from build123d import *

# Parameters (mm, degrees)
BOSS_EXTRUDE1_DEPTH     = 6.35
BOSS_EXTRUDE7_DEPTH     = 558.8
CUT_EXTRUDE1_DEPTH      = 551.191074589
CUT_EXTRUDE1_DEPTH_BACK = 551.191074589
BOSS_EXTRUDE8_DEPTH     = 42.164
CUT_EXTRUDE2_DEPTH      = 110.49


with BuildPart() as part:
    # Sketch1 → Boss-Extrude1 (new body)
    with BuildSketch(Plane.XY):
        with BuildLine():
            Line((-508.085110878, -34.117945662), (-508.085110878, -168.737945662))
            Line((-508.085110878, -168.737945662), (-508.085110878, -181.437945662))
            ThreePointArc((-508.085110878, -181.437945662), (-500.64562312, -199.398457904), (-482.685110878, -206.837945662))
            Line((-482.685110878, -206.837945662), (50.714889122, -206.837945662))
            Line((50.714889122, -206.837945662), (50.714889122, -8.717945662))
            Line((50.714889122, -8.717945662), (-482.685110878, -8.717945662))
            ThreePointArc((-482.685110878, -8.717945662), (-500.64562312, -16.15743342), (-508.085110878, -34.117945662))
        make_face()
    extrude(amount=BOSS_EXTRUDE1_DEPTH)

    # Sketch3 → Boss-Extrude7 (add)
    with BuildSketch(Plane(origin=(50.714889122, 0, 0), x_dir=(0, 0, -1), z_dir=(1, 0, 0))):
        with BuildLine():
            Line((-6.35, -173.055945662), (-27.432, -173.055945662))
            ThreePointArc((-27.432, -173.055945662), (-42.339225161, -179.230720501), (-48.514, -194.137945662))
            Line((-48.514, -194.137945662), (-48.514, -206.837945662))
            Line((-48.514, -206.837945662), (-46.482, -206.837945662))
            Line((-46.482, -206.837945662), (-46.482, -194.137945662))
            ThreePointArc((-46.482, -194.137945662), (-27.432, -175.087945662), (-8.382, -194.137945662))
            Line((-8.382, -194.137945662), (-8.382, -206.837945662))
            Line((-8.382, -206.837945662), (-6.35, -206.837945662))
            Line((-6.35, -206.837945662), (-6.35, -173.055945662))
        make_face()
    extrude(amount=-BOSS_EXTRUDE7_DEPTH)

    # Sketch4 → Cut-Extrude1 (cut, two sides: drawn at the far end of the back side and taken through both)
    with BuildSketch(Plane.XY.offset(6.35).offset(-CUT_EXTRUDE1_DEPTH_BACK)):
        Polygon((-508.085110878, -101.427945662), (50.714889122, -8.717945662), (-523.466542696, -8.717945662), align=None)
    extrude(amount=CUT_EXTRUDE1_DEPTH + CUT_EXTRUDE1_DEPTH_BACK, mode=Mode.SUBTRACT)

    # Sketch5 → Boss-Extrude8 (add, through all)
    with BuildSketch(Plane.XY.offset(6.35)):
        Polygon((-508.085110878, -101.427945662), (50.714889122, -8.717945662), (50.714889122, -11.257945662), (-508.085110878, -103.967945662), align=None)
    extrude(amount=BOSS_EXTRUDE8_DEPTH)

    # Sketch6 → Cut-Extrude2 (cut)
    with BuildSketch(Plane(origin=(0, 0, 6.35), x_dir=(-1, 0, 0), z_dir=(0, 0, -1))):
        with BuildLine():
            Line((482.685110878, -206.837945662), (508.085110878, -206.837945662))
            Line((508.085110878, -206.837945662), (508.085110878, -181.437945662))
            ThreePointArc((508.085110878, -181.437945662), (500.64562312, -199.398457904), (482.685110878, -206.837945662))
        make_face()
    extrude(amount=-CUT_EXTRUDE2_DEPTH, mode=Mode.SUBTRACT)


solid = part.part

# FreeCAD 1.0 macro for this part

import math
import FreeCAD as App
import Part
import Sketcher
from FreeCAD import Vector
Q = App.Units.Quantity

doc = App.newDocument("Part")
body = doc.addObject("PartDesign::Body", "Body")

sketch1 = body.newObject("Sketcher::SketchObject", "Sketch")
sketch1.AttachmentSupport = (doc.getObject("XY_Plane"), [""])
sketch1.MapMode = "FlatFace"
sketch1.addGeometry(Part.LineSegment(Vector(-508, -34, 0), Vector(-508, -181, 0)), False)
sketch1.addGeometry(Part.ArcOfCircle(Part.Circle(Vector(-483, -181, 0), Vector(0, 0, 1), 25), math.radians(180), math.radians(270)), False)
sketch1.addGeometry(Part.LineSegment(Vector(-483, -207, 0), Vector(51, -207, 0)), False)
sketch1.addGeometry(Part.LineSegment(Vector(51, -207, 0), Vector(51, -9, 0)), False)
sketch1.addGeometry(Part.LineSegment(Vector(51, -9, 0), Vector(-483, -9, 0)), False)
sketch1.addGeometry(Part.ArcOfCircle(Part.Circle(Vector(-483, -34, 0), Vector(0, 0, 1), 25), math.radians(90), math.radians(180)), False)
sketch1.addConstraint(Sketcher.Constraint("Tangent", 0, 2, 1, 1))
sketch1.addConstraint(Sketcher.Constraint("Tangent", 1, 2, 2, 1))
sketch1.addConstraint(Sketcher.Constraint("Coincident", 2, 2, 3, 1))
sketch1.addConstraint(Sketcher.Constraint("Coincident", 3, 2, 4, 1))
sketch1.addConstraint(Sketcher.Constraint("Tangent", 4, 2, 5, 1))
sketch1.addConstraint(Sketcher.Constraint("Tangent", 5, 2, 0, 1))
sketch1.addConstraint(Sketcher.Constraint("Vertical", 0))
sketch1.addConstraint(Sketcher.Constraint("Horizontal", 2))
sketch1.addConstraint(Sketcher.Constraint("Vertical", 3))
sketch1.addConstraint(Sketcher.Constraint("Horizontal", 4))
sketch1.addConstraint(Sketcher.Constraint("Equal", 1, 5))
sketch1.addConstraint(Sketcher.Constraint("Radius", 1, Q("1 in")))
sketch1.addConstraint(Sketcher.Constraint("DistanceX", 2, 1, 2, 2, Q("21 in")))
sketch1.addConstraint(Sketcher.Constraint("DistanceY", 0, 2, 0, 1, Q("5.8 in")))
sketch1.addConstraint(Sketcher.Constraint("DistanceX", 1, 3, -1, 1, 482.685111))
sketch1.addConstraint(Sketcher.Constraint("DistanceY", 1, 3, -1, 1, 181.437946))
pad1 = body.newObject("PartDesign::Pad", "Pad")
pad1.Profile = sketch1
pad1.Length = Q("0.25 in")

sketch2 = body.newObject("Sketcher::SketchObject", "Sketch001")
sketch2.AttachmentSupport = (doc.getObject("YZ_Plane"), [""])
sketch2.MapMode = "FlatFace"
sketch2.AttachmentOffset = App.Placement(Vector(0, 0, 50.714889), App.Rotation())
sketch2.addGeometry(Part.LineSegment(Vector(-173.1, 6.3, 0), Vector(-173.1, 27.4, 0)), False)
sketch2.addGeometry(Part.ArcOfCircle(Part.Circle(Vector(-194.1, 27.4, 0), Vector(0, 0, 1), 21.1), math.radians(0), math.radians(90)), False)
sketch2.addGeometry(Part.LineSegment(Vector(-194.1, 48.5, 0), Vector(-206.8, 48.5, 0)), False)
sketch2.addGeometry(Part.LineSegment(Vector(-206.8, 48.5, 0), Vector(-206.8, 46.5, 0)), False)
sketch2.addGeometry(Part.LineSegment(Vector(-206.8, 46.5, 0), Vector(-194.1, 46.5, 0)), False)
sketch2.addGeometry(Part.ArcOfCircle(Part.Circle(Vector(-194.1, 27.4, 0), Vector(0, 0, 1), 19.1), math.radians(-90), math.radians(90)), False)
sketch2.addGeometry(Part.LineSegment(Vector(-194.1, 8.4, 0), Vector(-206.8, 8.4, 0)), False)
sketch2.addGeometry(Part.LineSegment(Vector(-206.8, 8.4, 0), Vector(-206.8, 6.3, 0)), False)
sketch2.addGeometry(Part.LineSegment(Vector(-206.8, 6.3, 0), Vector(-173.1, 6.3, 0)), False)
sketch2.addConstraint(Sketcher.Constraint("Tangent", 0, 2, 1, 1))
sketch2.addConstraint(Sketcher.Constraint("Tangent", 1, 2, 2, 1))
sketch2.addConstraint(Sketcher.Constraint("Coincident", 2, 2, 3, 1))
sketch2.addConstraint(Sketcher.Constraint("Coincident", 3, 2, 4, 1))
sketch2.addConstraint(Sketcher.Constraint("Tangent", 4, 2, 5, 2))
sketch2.addConstraint(Sketcher.Constraint("Tangent", 5, 1, 6, 1))
sketch2.addConstraint(Sketcher.Constraint("Coincident", 6, 2, 7, 1))
sketch2.addConstraint(Sketcher.Constraint("Coincident", 7, 2, 8, 1))
sketch2.addConstraint(Sketcher.Constraint("Coincident", 8, 2, 0, 1))
sketch2.addConstraint(Sketcher.Constraint("Vertical", 0))
sketch2.addConstraint(Sketcher.Constraint("Horizontal", 2))
sketch2.addConstraint(Sketcher.Constraint("Vertical", 3))
sketch2.addConstraint(Sketcher.Constraint("Horizontal", 4))
sketch2.addConstraint(Sketcher.Constraint("Horizontal", 6))
sketch2.addConstraint(Sketcher.Constraint("Vertical", 7))
sketch2.addConstraint(Sketcher.Constraint("Horizontal", 8))
sketch2.addConstraint(Sketcher.Constraint("Coincident", 5, 3, 1, 3))
sketch2.addConstraint(Sketcher.Constraint("Vertical", 3, 2, 6, 2))
sketch2.addConstraint(Sketcher.Constraint("Equal", 3, 7))
sketch2.addConstraint(Sketcher.Constraint("Radius", 1, Q("0.83 in")))
sketch2.addConstraint(Sketcher.Constraint("Radius", 5, Q("0.75 in")))
sketch2.addConstraint(Sketcher.Constraint("DistanceX", 2, 2, 2, 1, Q("0.5 in")))
sketch2.addConstraint(Sketcher.Constraint("DistanceY", -1, 1, 1, 3, Q("1.08 in")))
sketch2.addConstraint(Sketcher.Constraint("DistanceX", 1, 3, -1, 1, 194.137946))
pad2 = body.newObject("PartDesign::Pad", "Pad001")
pad2.Profile = sketch2
pad2.Length = Q("22 in")
pad2.Reversed = True

sketch3 = body.newObject("Sketcher::SketchObject", "Sketch002")
sketch3.AttachmentSupport = (doc.getObject("XY_Plane"), [""])
sketch3.MapMode = "FlatFace"
sketch3.AttachmentOffset = App.Placement(Vector(0, 0, 0.25 * 25.4), App.Rotation())
sketch3.addGeometry(Part.LineSegment(Vector(-508, -101, 0), Vector(51, -9, 0)), False)
sketch3.addGeometry(Part.LineSegment(Vector(51, -9, 0), Vector(-523, -9, 0)), False)
sketch3.addGeometry(Part.LineSegment(Vector(-523, -9, 0), Vector(-508, -101, 0)), False)
sketch3.addConstraint(Sketcher.Constraint("Coincident", 0, 2, 1, 1))
sketch3.addConstraint(Sketcher.Constraint("Coincident", 1, 2, 2, 1))
sketch3.addConstraint(Sketcher.Constraint("Coincident", 2, 2, 0, 1))
sketch3.addConstraint(Sketcher.Constraint("Horizontal", 1))
sketch3.addConstraint(Sketcher.Constraint("Perpendicular", 0, 2))
sketch3.addConstraint(Sketcher.Constraint("DistanceX", 2, 2, 0, 2, Q("22 in")))
sketch3.addConstraint(Sketcher.Constraint("DistanceY", 2, 2, 1, 2, Q("3.65 in")))
sketch3.addConstraint(Sketcher.Constraint("DistanceX", -1, 1, 0, 2, 50.714889))
sketch3.addConstraint(Sketcher.Constraint("DistanceY", 0, 2, -1, 1, 8.717946))
pocket1 = body.newObject("PartDesign::Pocket", "Pocket")
pocket1.Profile = sketch3
pocket1.Type = "ThroughAll"
pocket1.Midplane = True

sketch4 = body.newObject("Sketcher::SketchObject", "Sketch003")
sketch4.AttachmentSupport = (doc.getObject("XY_Plane"), [""])
sketch4.MapMode = "FlatFace"
sketch4.AttachmentOffset = App.Placement(Vector(0, 0, 0.25 * 25.4), App.Rotation())
sketch4.addGeometry(Part.LineSegment(Vector(50.7, -8.7, 0), Vector(-508.1, -101.4, 0)), False)
sketch4.addGeometry(Part.LineSegment(Vector(-508.1, -101.4, 0), Vector(-508.1, -104, 0)), False)
sketch4.addGeometry(Part.LineSegment(Vector(-508.1, -104, 0), Vector(50.7, -11.3, 0)), False)
sketch4.addGeometry(Part.LineSegment(Vector(50.7, -11.3, 0), Vector(50.7, -8.7, 0)), False)
sketch4.addConstraint(Sketcher.Constraint("Coincident", 0, 2, 1, 1))
sketch4.addConstraint(Sketcher.Constraint("Coincident", 1, 2, 2, 1))
sketch4.addConstraint(Sketcher.Constraint("Coincident", 2, 2, 3, 1))
sketch4.addConstraint(Sketcher.Constraint("Coincident", 3, 2, 0, 1))
sketch4.addConstraint(Sketcher.Constraint("Vertical", 1))
sketch4.addConstraint(Sketcher.Constraint("Vertical", 3))
sketch4.addConstraint(Sketcher.Constraint("Parallel", 0, 2))
sketch4.addConstraint(Sketcher.Constraint("DistanceY", 1, 2, 1, 1, Q("0.1 in")))
sketch4.addConstraint(Sketcher.Constraint("DistanceX", 0, 2, 2, 2, Q("22 in")))
sketch4.addConstraint(Sketcher.Constraint("DistanceY", 0, 2, 2, 2, Q("3.55 in")))
sketch4.addConstraint(Sketcher.Constraint("DistanceX", 0, 2, -1, 1, 508.085111))
sketch4.addConstraint(Sketcher.Constraint("DistanceY", 0, 2, -1, 1, 101.427946))
pad3 = body.newObject("PartDesign::Pad", "Pad002")
pad3.Profile = sketch4
pad3.Length = Q("1.66 in")

sketch5 = body.newObject("Sketcher::SketchObject", "Sketch004")
sketch5.AttachmentSupport = (doc.getObject("XY_Plane"), [""])
sketch5.MapMode = "FlatFace"
sketch5.AttachmentOffset = App.Placement(Vector(0, 0, 0.25 * 25.4), App.Rotation())
sketch5.addGeometry(Part.LineSegment(Vector(-483, -207, 0), Vector(-508, -207, 0)), False)
sketch5.addGeometry(Part.LineSegment(Vector(-508, -207, 0), Vector(-508, -181, 0)), False)
sketch5.addGeometry(Part.ArcOfCircle(Part.Circle(Vector(-483, -181, 0), Vector(0, 0, 1), 25), math.radians(180), math.radians(270)), False)
sketch5.addConstraint(Sketcher.Constraint("Coincident", 0, 2, 1, 1))
sketch5.addConstraint(Sketcher.Constraint("Tangent", 1, 2, 2, 1))
sketch5.addConstraint(Sketcher.Constraint("Tangent", 2, 2, 0, 1))
sketch5.addConstraint(Sketcher.Constraint("Horizontal", 0))
sketch5.addConstraint(Sketcher.Constraint("Vertical", 1))
sketch5.addConstraint(Sketcher.Constraint("Radius", 2, Q("1 in")))
sketch5.addConstraint(Sketcher.Constraint("DistanceX", 2, 3, -1, 1, 482.685111))
sketch5.addConstraint(Sketcher.Constraint("DistanceY", 2, 3, -1, 1, 181.437946))
pocket2 = body.newObject("PartDesign::Pocket", "Pocket001")
pocket2.Profile = sketch5
pocket2.Length = Q("4.35 in")
pocket2.Reversed = True

doc.recompute()
